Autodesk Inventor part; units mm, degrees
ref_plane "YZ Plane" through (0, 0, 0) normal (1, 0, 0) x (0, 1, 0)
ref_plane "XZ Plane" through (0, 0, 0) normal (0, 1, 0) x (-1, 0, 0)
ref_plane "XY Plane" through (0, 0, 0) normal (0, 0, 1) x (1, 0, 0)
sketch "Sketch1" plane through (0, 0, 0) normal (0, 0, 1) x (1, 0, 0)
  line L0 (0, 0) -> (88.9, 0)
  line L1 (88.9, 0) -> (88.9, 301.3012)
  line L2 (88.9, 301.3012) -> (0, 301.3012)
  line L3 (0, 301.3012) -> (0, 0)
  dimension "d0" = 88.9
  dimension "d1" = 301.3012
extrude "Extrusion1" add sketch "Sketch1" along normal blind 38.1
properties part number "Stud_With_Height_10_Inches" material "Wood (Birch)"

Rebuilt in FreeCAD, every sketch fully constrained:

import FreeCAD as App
import Part
import Sketcher
Q = App.Units.Quantity


def add_polygon(sketch, points):
    """Adds a closed chain of lines whose ends are joined by coincident constraints."""
    first, n = sketch.GeometryCount, len(points)
    for a, b in zip(points, points[1:] + points[:1]):
        sketch.addGeometry(Part.LineSegment(App.Vector(*a, 0), App.Vector(*b, 0)), False)
    for i in range(n):
        sketch.addConstraint(Sketcher.Constraint("Coincident", first + i, 2, first + (i + 1) % n, 1))

doc = App.newDocument("Part")
params = doc.addObject("Spreadsheet::Sheet", "Params")
for row, (alias, value) in enumerate([
    ("sketch1_width", "3.5 in"),
    ("pad1_length", "1.5 in"),
], start=1):
    params.set(f"A{row}", alias)
    params.set(f"B{row}", "=" + value)
    params.setAlias(f"B{row}", alias)

body = doc.addObject("PartDesign::Body", "Body")

# Sketch on XY plane
sketch1 = body.newObject("Sketcher::SketchObject", "Sketch")
sketch1.AttachmentSupport = (doc.getObject("XY_Plane"), [""])
sketch1.MapMode = "FlatFace"
add_polygon(sketch1, [(0, 301), (0, 0), (89, 0), (89, 301)])  # lines 0-3
sketch1.addConstraint([
    Sketcher.Constraint("Vertical", 0),
    Sketcher.Constraint("Horizontal", 1),
    Sketcher.Constraint("Vertical", 2),
    Sketcher.Constraint("Horizontal", 3),
    Sketcher.Constraint("Coincident", 0, 2, -1, 1),
    Sketcher.Constraint("DistanceX", 1, 1, 1, 2, Q("3.5 in")),
    Sketcher.Constraint("DistanceY", 0, 2, 0, 1, 301.3012),
])
sketch1.setExpression("Constraints[9]", "Params.sketch1_width")
pad1 = body.newObject("PartDesign::Pad", "Pad")
pad1.Profile = sketch1
pad1.setExpression("Length", "Params.pad1_length")

doc.recompute()
